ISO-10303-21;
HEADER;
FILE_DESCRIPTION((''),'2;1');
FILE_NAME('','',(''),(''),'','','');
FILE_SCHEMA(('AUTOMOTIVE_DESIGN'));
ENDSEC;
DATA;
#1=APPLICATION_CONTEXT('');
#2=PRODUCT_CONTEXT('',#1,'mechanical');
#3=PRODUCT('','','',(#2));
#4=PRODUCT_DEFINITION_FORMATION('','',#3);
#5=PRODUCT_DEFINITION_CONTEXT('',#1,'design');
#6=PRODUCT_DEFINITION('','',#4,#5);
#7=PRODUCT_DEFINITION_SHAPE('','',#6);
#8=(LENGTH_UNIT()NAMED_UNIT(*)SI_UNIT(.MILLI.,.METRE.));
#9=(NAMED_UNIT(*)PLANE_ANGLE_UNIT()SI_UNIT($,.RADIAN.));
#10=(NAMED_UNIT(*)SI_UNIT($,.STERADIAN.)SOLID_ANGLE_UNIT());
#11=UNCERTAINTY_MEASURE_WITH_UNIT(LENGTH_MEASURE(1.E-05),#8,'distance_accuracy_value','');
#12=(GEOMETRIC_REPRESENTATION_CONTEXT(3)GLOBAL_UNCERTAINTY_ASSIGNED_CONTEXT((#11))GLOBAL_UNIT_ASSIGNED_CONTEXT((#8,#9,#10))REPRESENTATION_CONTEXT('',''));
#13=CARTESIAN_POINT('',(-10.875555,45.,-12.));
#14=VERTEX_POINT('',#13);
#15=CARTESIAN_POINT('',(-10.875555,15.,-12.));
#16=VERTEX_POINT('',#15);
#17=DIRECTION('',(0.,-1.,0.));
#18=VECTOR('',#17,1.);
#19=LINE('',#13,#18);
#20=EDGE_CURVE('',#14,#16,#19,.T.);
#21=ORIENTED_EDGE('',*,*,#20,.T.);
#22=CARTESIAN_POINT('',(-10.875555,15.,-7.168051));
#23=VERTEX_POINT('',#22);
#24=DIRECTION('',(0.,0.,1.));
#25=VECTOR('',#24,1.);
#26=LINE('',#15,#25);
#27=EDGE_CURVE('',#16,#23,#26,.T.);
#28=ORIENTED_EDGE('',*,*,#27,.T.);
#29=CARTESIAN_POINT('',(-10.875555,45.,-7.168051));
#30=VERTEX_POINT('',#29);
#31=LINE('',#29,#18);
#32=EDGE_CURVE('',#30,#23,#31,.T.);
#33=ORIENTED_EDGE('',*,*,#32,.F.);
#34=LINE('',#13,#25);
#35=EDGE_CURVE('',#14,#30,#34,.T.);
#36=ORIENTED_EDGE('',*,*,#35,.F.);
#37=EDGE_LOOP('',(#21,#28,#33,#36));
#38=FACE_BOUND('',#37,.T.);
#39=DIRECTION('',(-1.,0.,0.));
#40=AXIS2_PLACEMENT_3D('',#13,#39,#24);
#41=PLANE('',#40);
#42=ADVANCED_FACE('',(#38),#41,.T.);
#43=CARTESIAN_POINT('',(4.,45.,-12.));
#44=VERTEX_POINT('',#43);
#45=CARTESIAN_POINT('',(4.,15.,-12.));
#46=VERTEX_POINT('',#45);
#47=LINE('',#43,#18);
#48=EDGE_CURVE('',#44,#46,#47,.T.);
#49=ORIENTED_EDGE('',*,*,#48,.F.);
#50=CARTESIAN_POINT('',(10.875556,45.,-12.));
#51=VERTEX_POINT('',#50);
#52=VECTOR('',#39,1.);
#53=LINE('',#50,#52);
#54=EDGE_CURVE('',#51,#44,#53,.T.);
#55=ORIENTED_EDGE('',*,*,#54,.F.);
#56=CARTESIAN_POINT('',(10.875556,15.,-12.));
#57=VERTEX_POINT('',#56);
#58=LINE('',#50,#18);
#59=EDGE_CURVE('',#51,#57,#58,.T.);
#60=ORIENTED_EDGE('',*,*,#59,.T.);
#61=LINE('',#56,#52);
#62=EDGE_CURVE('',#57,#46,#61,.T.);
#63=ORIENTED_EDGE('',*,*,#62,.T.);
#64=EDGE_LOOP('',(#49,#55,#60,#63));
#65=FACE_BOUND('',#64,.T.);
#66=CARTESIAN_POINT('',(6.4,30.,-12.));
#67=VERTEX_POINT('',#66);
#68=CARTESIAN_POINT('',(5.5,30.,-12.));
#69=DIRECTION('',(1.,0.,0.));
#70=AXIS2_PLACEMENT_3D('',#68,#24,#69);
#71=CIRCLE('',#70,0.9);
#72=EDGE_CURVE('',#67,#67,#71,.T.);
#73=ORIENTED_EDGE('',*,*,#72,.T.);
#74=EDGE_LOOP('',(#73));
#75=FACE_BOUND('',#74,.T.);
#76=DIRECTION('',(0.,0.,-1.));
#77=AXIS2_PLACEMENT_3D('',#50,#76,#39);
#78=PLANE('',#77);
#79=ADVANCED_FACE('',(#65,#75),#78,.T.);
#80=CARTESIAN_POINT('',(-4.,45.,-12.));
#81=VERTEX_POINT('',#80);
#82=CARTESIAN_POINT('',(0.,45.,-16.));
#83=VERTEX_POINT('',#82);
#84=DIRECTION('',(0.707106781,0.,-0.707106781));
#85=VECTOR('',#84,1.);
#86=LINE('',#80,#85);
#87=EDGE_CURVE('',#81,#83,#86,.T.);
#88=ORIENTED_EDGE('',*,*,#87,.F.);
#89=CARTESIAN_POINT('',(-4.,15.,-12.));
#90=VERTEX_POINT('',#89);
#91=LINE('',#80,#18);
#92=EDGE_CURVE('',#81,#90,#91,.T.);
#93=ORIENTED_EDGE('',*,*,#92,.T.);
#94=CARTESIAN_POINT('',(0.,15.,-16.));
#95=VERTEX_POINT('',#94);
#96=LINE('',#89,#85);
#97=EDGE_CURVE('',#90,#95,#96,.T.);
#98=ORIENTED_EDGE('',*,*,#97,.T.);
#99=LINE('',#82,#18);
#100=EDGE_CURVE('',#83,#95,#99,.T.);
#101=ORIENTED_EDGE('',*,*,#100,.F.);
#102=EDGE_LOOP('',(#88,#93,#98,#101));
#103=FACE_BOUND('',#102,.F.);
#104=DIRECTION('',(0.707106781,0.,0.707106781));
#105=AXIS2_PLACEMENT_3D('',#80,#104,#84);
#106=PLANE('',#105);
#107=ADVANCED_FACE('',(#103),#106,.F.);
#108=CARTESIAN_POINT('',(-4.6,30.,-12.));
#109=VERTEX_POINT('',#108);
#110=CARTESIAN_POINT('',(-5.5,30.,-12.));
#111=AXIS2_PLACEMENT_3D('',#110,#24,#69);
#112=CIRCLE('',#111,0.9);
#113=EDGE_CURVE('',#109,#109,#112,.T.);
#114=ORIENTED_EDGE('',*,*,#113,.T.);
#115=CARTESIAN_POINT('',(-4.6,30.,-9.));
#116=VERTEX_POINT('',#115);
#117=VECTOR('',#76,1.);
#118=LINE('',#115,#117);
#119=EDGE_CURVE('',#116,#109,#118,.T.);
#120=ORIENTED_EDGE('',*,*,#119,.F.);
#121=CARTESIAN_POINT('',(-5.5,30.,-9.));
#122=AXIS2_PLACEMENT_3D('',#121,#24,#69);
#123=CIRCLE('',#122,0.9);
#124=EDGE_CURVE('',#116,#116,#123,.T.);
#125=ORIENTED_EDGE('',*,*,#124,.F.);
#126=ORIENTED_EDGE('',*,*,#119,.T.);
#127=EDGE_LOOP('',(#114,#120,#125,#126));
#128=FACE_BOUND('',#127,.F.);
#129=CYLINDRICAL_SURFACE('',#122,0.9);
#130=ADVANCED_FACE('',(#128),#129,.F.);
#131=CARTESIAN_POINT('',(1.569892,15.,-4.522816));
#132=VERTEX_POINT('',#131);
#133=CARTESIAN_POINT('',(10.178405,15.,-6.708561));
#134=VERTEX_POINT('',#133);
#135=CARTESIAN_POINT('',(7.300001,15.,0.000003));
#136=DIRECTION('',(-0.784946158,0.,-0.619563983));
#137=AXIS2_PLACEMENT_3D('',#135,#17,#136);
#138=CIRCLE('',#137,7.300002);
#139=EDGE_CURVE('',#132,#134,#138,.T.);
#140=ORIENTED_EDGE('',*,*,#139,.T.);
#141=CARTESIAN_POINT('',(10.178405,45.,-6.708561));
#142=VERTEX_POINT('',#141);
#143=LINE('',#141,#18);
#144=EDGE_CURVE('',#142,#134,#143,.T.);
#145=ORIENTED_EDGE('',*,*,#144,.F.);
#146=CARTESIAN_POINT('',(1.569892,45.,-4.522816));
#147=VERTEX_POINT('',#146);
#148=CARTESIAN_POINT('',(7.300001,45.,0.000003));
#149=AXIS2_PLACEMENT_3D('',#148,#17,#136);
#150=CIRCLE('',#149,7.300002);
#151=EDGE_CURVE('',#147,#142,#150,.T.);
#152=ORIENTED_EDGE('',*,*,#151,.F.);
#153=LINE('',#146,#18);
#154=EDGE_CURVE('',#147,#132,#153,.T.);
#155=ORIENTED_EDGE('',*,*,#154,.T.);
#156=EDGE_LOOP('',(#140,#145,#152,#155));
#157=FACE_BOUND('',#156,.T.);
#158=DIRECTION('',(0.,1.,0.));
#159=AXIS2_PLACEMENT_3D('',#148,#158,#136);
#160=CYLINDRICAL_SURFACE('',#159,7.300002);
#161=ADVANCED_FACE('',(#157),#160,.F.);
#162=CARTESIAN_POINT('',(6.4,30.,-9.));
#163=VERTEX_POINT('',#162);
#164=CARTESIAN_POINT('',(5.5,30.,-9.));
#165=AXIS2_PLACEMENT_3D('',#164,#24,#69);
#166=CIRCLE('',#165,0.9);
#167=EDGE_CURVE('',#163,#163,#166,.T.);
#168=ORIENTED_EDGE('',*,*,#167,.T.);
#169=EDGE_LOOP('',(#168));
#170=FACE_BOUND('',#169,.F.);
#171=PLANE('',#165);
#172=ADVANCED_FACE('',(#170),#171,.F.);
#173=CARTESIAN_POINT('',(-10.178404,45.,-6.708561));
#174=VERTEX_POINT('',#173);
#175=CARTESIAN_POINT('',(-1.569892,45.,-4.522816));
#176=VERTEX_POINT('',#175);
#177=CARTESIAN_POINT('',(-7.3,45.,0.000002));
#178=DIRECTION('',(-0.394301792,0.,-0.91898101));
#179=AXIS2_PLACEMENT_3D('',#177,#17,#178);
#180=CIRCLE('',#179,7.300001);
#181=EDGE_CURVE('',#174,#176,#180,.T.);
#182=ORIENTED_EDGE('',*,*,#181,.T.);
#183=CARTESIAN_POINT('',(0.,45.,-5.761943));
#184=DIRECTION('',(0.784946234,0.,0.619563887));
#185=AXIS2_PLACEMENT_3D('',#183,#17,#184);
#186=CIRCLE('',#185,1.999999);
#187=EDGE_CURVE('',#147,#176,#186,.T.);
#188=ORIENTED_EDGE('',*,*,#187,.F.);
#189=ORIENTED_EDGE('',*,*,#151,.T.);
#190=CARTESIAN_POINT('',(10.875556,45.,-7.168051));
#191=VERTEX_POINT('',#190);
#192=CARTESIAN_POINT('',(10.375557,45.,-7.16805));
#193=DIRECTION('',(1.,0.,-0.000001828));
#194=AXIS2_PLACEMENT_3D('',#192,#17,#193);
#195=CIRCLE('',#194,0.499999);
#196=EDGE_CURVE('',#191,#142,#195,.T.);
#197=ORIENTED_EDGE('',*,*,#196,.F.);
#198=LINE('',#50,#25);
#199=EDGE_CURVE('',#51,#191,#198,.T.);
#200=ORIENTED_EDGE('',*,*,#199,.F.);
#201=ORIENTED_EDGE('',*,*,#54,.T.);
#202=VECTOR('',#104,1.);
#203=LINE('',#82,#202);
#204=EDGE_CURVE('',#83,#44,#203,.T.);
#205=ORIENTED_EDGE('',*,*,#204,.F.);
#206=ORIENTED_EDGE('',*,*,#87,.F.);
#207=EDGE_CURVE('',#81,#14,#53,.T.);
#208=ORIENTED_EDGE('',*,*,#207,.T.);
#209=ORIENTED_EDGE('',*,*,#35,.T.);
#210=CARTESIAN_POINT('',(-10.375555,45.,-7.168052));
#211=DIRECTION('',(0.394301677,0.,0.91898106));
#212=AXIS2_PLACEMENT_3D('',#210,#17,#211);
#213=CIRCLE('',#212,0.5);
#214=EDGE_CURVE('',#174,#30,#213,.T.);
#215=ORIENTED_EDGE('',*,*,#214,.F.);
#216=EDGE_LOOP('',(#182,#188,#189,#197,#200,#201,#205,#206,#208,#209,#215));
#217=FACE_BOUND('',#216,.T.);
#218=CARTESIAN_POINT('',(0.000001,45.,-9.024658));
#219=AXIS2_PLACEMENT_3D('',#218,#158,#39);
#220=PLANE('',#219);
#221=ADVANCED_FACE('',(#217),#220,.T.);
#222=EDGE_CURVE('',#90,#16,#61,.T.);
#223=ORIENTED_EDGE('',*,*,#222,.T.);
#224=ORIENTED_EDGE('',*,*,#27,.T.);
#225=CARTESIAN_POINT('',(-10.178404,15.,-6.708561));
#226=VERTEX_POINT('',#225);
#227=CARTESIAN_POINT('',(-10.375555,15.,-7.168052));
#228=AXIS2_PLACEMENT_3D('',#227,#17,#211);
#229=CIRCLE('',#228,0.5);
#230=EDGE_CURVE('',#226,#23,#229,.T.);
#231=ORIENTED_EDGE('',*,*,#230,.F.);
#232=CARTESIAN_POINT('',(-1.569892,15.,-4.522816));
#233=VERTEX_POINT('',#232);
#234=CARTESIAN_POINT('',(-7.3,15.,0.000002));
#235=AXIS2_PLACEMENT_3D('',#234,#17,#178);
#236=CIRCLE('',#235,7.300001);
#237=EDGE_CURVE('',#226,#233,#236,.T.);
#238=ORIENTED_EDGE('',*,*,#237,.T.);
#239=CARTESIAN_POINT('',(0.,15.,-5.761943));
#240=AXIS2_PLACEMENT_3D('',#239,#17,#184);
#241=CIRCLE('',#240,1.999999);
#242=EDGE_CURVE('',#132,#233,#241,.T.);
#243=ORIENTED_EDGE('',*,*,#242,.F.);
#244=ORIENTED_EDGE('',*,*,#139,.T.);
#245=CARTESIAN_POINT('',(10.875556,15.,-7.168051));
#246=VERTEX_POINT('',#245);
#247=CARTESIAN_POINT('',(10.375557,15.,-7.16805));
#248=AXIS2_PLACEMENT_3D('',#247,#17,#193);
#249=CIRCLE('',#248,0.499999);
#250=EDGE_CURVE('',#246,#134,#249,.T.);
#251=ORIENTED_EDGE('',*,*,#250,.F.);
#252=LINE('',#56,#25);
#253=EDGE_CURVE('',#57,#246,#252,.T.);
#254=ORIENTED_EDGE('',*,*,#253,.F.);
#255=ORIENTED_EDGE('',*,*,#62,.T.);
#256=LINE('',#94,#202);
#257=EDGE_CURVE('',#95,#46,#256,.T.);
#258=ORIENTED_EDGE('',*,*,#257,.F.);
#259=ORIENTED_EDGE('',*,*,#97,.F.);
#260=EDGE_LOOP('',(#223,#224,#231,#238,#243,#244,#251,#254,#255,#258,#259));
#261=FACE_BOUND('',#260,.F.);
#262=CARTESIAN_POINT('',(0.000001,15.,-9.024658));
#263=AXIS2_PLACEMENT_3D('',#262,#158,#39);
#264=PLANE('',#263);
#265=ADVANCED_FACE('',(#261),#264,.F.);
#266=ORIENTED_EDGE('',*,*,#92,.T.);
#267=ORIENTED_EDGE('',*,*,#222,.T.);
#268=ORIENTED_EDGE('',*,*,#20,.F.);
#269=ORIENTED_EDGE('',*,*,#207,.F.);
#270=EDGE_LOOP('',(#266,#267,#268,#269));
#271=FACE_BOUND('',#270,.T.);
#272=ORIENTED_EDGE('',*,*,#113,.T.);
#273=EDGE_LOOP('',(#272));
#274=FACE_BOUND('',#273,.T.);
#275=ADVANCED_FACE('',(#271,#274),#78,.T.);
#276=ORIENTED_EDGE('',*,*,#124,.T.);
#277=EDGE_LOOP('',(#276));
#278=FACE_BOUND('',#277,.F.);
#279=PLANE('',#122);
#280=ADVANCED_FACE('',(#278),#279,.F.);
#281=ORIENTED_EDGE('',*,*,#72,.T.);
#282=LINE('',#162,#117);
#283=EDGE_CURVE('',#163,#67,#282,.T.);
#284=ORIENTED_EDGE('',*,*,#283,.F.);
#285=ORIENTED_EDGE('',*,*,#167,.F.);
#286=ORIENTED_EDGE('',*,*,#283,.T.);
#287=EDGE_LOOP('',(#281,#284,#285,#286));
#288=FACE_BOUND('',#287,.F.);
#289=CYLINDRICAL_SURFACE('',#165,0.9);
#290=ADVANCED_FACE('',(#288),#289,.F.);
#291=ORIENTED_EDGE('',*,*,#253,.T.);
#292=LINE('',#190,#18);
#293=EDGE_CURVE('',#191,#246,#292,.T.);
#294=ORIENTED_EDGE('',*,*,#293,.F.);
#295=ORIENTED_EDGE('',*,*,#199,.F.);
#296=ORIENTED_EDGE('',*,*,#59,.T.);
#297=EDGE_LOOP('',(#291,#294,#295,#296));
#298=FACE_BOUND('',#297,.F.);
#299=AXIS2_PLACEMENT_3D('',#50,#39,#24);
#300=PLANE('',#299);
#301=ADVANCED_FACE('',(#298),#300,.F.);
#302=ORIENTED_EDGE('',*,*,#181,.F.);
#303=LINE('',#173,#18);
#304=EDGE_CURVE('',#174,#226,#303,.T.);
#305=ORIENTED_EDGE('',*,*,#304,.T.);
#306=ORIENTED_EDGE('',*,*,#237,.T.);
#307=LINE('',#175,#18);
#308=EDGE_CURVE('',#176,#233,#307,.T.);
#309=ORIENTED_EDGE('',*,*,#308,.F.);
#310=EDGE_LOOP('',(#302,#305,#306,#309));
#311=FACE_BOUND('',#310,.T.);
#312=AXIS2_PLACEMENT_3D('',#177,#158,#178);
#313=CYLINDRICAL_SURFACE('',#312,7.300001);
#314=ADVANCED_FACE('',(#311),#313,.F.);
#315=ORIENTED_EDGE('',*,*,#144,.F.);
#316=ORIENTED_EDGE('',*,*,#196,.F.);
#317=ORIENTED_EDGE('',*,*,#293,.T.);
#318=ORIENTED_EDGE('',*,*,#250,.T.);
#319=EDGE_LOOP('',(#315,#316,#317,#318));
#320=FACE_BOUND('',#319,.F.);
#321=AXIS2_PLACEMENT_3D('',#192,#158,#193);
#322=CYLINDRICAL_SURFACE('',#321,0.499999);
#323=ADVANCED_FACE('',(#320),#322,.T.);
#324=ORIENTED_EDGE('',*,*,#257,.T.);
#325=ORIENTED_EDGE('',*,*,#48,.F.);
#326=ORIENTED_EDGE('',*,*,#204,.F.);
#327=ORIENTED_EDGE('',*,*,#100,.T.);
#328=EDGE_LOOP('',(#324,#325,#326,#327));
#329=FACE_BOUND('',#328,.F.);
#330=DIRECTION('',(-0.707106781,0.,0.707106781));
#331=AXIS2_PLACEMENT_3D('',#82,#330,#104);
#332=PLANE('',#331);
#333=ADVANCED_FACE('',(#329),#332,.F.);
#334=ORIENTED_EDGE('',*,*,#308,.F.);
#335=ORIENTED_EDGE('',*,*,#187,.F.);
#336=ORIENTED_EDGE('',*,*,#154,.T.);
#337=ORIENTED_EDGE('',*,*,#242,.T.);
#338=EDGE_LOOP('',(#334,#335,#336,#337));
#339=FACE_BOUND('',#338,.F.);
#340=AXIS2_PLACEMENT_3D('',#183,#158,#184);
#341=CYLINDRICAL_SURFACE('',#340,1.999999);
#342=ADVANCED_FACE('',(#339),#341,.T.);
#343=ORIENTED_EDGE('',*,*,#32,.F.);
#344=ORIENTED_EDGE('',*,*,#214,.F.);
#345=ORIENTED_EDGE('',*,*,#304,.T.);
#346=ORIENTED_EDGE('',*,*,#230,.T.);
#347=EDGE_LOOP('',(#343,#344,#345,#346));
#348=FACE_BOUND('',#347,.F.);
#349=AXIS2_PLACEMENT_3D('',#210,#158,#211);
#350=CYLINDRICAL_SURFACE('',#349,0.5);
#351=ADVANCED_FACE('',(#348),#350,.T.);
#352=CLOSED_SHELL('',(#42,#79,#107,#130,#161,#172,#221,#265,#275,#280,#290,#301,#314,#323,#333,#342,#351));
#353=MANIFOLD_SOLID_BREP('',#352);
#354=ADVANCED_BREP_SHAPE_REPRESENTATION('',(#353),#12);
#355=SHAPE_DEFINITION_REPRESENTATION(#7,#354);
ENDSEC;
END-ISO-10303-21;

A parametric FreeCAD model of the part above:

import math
import FreeCAD as App
import Part
import Sketcher

V = App.Vector

doc = App.newDocument("Part")
body = doc.addObject("PartDesign::Body", "Body")

sketch1 = doc.addObject("Sketcher::SketchObject", "Sketch")
body.addObject(sketch1)
sketch1.AttachmentSupport = (doc.XZ_Plane, [""])
sketch1.MapMode = "FlatFace"
sketch1.AttachmentOffset = App.Placement(V(0, 0, -45), App.Rotation())
sketch1.addGeometry([
    Part.ArcOfCircle(Part.Circle(V(-7.3, 0.000002, 0), V(0, 0, 1), 7.300001), math.radians(-113.222436), math.radians(-38.284299)),
    Part.ArcOfCircle(Part.Circle(V(-10.375555, -7.168052, 0), V(0, 0, 1), 0.5), math.radians(66.777571), math.radians(179.999927)),
    Part.LineSegment(V(-10.875555, -7.168051, 0), V(-10.875555, -12, 0)),
    Part.LineSegment(V(-10.875555, -12, 0), V(10.875556, -12, 0)),
    Part.LineSegment(V(10.875556, -12, 0), V(10.875556, -7.168051, 0)),
    Part.ArcOfCircle(Part.Circle(V(10.375557, -7.16805, 0), V(0, 0, 1), 0.499999), math.radians(-0.000105), math.radians(113.222606)),
    Part.ArcOfCircle(Part.Circle(V(7.300001, 0.000003, 0), V(0, 0, 1), 7.300002), math.radians(-141.715699), math.radians(-66.777564)),
    Part.ArcOfCircle(Part.Circle(V(0, -5.761943, 0), V(0, 0, 1), 1.999999), math.radians(38.284294), math.radians(141.715706)),
], False)
sketch1.addConstraint([
    Sketcher.Constraint("Tangent", 0, 1, 1, 1),
    Sketcher.Constraint("Tangent", 1, 2, 2, 1),
    Sketcher.Constraint("Coincident", 2, 2, 3, 1),
    Sketcher.Constraint("Coincident", 3, 2, 4, 1),
    Sketcher.Constraint("Tangent", 4, 2, 5, 1),
    Sketcher.Constraint("Coincident", 5, 2, 6, 2),
    Sketcher.Constraint("Tangent", 6, 1, 7, 1),
    Sketcher.Constraint("Tangent", 7, 2, 0, 2),
    Sketcher.Constraint("Vertical", 2),
    Sketcher.Constraint("Horizontal", 3),
    Sketcher.Constraint("Vertical", 4),
    Sketcher.Constraint("Equal", 1, 5),
    Sketcher.Constraint("Equal", 0, 6),
    Sketcher.Constraint("Symmetric", 0, 3, 6, 3, -1, 1),
    Sketcher.Constraint("Symmetric", 1, 3, 5, 3, -2),
    Sketcher.Constraint("Horizontal", 0, 1, 5, 2),
    Sketcher.Constraint("Radius", 7, 1.999999),
    Sketcher.Constraint("Radius", 0, 7.300001),
    Sketcher.Constraint("Radius", 1, 0.5),
    Sketcher.Constraint("DistanceY", 2, 2, -1, 1, 12.0),
    Sketcher.Constraint("DistanceX", 0, 3, -1, 1, 7.3),
    Sketcher.Constraint("DistanceX", 3, 1, 3, 2, 21.751111),
])
pad1 = doc.addObject("PartDesign::Pad", "Pad")
body.addObject(pad1)
pad1.Profile = sketch1
pad1.Length = 30

sketch2 = doc.addObject("Sketcher::SketchObject", "Sketch001")
body.addObject(sketch2)
sketch2.AttachmentSupport = (doc.XZ_Plane, [""])
sketch2.MapMode = "FlatFace"
sketch2.AttachmentOffset = App.Placement(V(0, 0, -45), App.Rotation())
sketch2.addGeometry([
    Part.LineSegment(V(-4, -12, 0), V(0, -16, 0)),
    Part.LineSegment(V(0, -16, 0), V(4, -12, 0)),
    Part.LineSegment(V(4, -12, 0), V(-4, -12, 0)),
], False)
sketch2.addConstraint([
    Sketcher.Constraint("Coincident", 0, 2, 1, 1),
    Sketcher.Constraint("Coincident", 1, 2, 2, 1),
    Sketcher.Constraint("Coincident", 2, 2, 0, 1),
    Sketcher.Constraint("Horizontal", 2),
    Sketcher.Constraint("PointOnObject", 0, 2, -2),
    Sketcher.Constraint("Perpendicular", 0, 1),
    Sketcher.Constraint("Equal", 0, 1),
    Sketcher.Constraint("DistanceX", 2, 2, 2, 1, 8.0),
    Sketcher.Constraint("DistanceY", 0, 2, -1, 1, 16.0),
])
pad2 = doc.addObject("PartDesign::Pad", "Pad001")
body.addObject(pad2)
pad2.Profile = sketch2
pad2.Length = 30

sketch3 = doc.addObject("Sketcher::SketchObject", "Sketch002")
body.addObject(sketch3)
sketch3.AttachmentSupport = (doc.XY_Plane, [""])
sketch3.MapMode = "FlatFace"
sketch3.AttachmentOffset = App.Placement(V(0, 0, -9), App.Rotation())
sketch3.addGeometry([
    Part.Circle(V(-5.5, 30, 0), V(0, 0, 1), 0.9),
    Part.Circle(V(-5.5, -30, 0), V(0, 0, 1), 0.9),
    Part.Circle(V(5.5, 30, 0), V(0, 0, 1), 0.9),
    Part.Circle(V(5.5, -30, 0), V(0, 0, 1), 0.9),
], False)
sketch3.addConstraint([
    Sketcher.Constraint("Equal", 0, 1),
    Sketcher.Constraint("Equal", 1, 2),
    Sketcher.Constraint("Equal", 2, 3),
    Sketcher.Constraint("Symmetric", 1, 3, 2, 3, -1, 1),
    Sketcher.Constraint("Symmetric", 0, 3, 3, 3, -1, 1),
    Sketcher.Constraint("Symmetric", 0, 3, 2, 3, -2),
    Sketcher.Constraint("Diameter", 0, 1.8),
    Sketcher.Constraint("DistanceY", -1, 1, 0, 3, 30.0),
    Sketcher.Constraint("DistanceX", 0, 3, 2, 3, 11.0),
])
pocket1 = doc.addObject("PartDesign::Pocket", "Pocket")
body.addObject(pocket1)
pocket1.Profile = sketch3
pocket1.Length = 5

doc.recompute()
